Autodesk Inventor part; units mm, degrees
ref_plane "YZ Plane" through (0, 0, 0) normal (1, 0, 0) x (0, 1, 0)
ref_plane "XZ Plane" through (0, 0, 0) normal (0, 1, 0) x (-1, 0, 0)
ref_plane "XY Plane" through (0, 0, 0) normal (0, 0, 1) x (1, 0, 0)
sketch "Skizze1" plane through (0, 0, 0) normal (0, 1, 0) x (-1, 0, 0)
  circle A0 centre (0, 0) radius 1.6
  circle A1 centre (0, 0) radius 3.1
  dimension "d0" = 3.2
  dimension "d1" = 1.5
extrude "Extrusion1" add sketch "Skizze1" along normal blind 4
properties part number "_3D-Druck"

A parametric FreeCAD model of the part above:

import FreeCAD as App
import Part
import Sketcher
from FreeCAD import Vector
Q = App.Units.Quantity

doc = App.newDocument("Part")
body = doc.addObject("PartDesign::Body", "Body")

sketch1 = body.newObject("Sketcher::SketchObject", "Sketch")
sketch1.AttachmentSupport = (doc.getObject("XZ_Plane"), [""])
sketch1.MapMode = "FlatFace"
sketch1.addGeometry([
    Part.Circle(Vector(0, 0, 0), Vector(0, 0, 1), 3.1),
    Part.Circle(Vector(0, 0, 0), Vector(0, 0, 1), 1.6),
], False)
sketch1.addConstraint([
    Sketcher.Constraint("Coincident", 0, 3, -1, 1),
    Sketcher.Constraint("Coincident", 1, 3, -1, 1),
    Sketcher.Constraint("Diameter", 1, Q("3.2 mm")),
    Sketcher.Constraint("Diameter", 0, Q("6.2 mm")),
])
pad1 = body.newObject("PartDesign::Pad", "Pad")
pad1.Profile = sketch1
pad1.Length = 4
pad1.Reversed = True

doc.recompute()
